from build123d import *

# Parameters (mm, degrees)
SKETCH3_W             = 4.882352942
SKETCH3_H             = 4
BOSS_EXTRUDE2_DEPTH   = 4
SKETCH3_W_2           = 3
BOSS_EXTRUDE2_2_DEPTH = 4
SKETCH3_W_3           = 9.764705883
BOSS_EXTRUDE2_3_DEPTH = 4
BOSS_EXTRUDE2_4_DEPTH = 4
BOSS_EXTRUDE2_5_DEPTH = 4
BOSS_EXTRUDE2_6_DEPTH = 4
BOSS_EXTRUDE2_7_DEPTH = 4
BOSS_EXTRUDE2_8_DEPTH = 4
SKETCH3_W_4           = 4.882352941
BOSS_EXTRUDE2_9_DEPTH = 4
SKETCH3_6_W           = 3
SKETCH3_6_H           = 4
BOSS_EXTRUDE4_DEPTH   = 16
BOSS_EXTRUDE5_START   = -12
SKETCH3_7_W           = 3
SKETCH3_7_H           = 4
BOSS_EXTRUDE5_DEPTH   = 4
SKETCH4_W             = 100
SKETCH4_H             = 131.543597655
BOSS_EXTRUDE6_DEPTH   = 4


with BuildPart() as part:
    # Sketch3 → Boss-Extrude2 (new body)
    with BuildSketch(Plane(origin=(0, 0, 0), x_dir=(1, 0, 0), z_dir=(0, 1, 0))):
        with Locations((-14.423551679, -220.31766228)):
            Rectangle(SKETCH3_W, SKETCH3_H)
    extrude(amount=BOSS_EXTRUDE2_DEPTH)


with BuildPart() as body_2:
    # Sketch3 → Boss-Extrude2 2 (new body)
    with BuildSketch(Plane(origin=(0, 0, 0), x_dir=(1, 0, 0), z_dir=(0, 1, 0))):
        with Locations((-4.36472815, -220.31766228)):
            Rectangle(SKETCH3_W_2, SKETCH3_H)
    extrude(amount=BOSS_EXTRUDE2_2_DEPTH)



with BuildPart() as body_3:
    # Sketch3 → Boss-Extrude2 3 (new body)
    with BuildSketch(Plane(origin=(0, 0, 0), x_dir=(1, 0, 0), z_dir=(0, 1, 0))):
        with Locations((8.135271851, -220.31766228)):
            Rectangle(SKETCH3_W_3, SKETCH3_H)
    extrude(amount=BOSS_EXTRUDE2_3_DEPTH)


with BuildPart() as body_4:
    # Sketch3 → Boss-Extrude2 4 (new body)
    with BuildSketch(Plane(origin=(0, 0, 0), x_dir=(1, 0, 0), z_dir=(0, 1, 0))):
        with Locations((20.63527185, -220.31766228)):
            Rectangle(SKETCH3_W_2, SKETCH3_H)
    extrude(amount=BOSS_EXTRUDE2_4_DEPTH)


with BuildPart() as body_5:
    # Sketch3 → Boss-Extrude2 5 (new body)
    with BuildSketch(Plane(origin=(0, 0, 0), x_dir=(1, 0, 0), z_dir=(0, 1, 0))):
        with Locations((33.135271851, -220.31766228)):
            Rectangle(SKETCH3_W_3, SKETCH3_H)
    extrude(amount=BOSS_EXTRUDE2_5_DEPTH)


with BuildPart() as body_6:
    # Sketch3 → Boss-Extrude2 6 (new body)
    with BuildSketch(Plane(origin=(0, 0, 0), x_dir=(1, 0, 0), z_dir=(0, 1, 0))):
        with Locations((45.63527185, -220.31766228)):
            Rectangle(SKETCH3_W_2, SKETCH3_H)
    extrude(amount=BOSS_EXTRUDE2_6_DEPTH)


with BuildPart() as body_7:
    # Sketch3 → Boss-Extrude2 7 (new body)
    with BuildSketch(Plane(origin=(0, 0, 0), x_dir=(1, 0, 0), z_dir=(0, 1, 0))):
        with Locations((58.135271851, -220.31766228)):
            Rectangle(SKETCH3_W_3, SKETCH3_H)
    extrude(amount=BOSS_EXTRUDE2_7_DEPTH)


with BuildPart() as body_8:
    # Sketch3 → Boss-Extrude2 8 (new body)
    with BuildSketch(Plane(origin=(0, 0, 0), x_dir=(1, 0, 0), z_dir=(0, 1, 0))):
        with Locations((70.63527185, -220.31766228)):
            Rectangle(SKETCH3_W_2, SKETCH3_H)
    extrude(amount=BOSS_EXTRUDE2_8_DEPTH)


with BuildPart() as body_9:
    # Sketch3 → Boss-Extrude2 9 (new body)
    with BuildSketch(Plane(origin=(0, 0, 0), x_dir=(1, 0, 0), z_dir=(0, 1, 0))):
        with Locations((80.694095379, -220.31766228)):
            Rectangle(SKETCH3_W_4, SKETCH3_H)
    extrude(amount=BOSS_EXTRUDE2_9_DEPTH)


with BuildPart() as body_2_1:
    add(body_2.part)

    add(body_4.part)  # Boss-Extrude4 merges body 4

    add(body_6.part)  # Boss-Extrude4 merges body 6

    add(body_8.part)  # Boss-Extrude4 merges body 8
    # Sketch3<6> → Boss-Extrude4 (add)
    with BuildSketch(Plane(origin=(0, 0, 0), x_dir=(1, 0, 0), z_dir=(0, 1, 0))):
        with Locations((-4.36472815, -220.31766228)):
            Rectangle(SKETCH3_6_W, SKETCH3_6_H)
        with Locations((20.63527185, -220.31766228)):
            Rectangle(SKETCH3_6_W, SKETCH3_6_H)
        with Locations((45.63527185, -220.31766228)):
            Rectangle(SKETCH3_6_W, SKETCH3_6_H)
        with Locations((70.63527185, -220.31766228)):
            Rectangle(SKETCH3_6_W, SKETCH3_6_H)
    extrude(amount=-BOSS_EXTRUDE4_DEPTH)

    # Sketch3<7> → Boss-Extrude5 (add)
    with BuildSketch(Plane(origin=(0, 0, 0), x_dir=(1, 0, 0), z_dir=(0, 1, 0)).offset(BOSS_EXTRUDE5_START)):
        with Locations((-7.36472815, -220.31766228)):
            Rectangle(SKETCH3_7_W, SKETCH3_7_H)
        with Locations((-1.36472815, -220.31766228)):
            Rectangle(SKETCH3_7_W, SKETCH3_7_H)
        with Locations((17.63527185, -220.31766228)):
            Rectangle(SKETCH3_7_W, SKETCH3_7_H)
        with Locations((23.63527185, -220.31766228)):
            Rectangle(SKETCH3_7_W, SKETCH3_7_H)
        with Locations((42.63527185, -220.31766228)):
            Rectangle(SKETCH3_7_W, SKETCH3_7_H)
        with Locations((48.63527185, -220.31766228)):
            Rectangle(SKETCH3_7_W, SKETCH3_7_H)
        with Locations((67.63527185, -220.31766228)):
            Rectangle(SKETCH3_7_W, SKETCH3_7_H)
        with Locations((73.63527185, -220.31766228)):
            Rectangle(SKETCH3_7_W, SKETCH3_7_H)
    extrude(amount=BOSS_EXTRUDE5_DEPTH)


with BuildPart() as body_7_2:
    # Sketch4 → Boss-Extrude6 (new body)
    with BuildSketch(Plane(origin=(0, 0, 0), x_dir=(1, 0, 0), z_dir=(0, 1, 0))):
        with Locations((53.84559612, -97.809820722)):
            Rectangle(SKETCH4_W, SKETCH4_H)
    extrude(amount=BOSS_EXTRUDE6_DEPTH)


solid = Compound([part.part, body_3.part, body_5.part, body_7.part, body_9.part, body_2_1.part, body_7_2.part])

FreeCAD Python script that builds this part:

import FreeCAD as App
import Part
import Sketcher

doc = App.newDocument("Part")
body = doc.addObject("PartDesign::Body", "Body")

sketch1 = body.newObject("Sketcher::SketchObject", "Sketch")
sketch1.AttachmentSupport = (doc.getObject("XZ_Plane"), [""])
sketch1.MapMode = "FlatFace"
sketch1.addGeometry([
    Part.LineSegment(App.Vector(-16.864728, 218.317662, 0), App.Vector(-16.864728, 222.317662, 0)),
    Part.LineSegment(App.Vector(-16.864728, 222.317662, 0), App.Vector(-11.982375, 222.317662, 0)),
    Part.LineSegment(App.Vector(-11.982375, 222.317662, 0), App.Vector(-11.982375, 218.317662, 0)),
    Part.LineSegment(App.Vector(-11.982375, 218.317662, 0), App.Vector(-16.864728, 218.317662, 0)),
], False)
sketch1.addConstraint([
    Sketcher.Constraint("Coincident", 0, 2, 1, 1),
    Sketcher.Constraint("Coincident", 1, 2, 2, 1),
    Sketcher.Constraint("Coincident", 2, 2, 3, 1),
    Sketcher.Constraint("Coincident", 3, 2, 0, 1),
    Sketcher.Constraint("Vertical", 0),
    Sketcher.Constraint("Horizontal", 1),
    Sketcher.Constraint("Vertical", 2),
    Sketcher.Constraint("Horizontal", 3),
    Sketcher.Constraint("DistanceY", 0, 1, 0, 2, 4.0),
    Sketcher.Constraint("DistanceX", 1, 1, 1, 2, 4.882353),
    Sketcher.Constraint("DistanceX", 0, 2, -1, 1, 16.864728),
    Sketcher.Constraint("DistanceY", -1, 1, 0, 2, 222.317662),
])
pad1 = body.newObject("PartDesign::Pad", "Pad")
pad1.Profile = sketch1
pad1.Length = 4
pad1.Reversed = True
body2 = doc.addObject("PartDesign::Body", "Body001")

sketch2 = body2.newObject("Sketcher::SketchObject", "Sketch001")
sketch2.AttachmentSupport = (doc.getObject("XZ_Plane001"), [""])
sketch2.MapMode = "FlatFace"
sketch2.addGeometry([
    Part.LineSegment(App.Vector(-5.864728, 218.317662, 0), App.Vector(-5.864728, 222.317662, 0)),
    Part.LineSegment(App.Vector(-5.864728, 222.317662, 0), App.Vector(-2.864728, 222.317662, 0)),
    Part.LineSegment(App.Vector(-2.864728, 222.317662, 0), App.Vector(-2.864728, 218.317662, 0)),
    Part.LineSegment(App.Vector(-2.864728, 218.317662, 0), App.Vector(-5.864728, 218.317662, 0)),
], False)
sketch2.addConstraint([
    Sketcher.Constraint("Coincident", 0, 2, 1, 1),
    Sketcher.Constraint("Coincident", 1, 2, 2, 1),
    Sketcher.Constraint("Coincident", 2, 2, 3, 1),
    Sketcher.Constraint("Coincident", 3, 2, 0, 1),
    Sketcher.Constraint("Vertical", 0),
    Sketcher.Constraint("Horizontal", 1),
    Sketcher.Constraint("Vertical", 2),
    Sketcher.Constraint("Horizontal", 3),
    Sketcher.Constraint("DistanceX", 1, 1, 1, 2, 3.0),
    Sketcher.Constraint("DistanceY", 0, 1, 0, 2, 4.0),
    Sketcher.Constraint("DistanceX", 0, 2, -1, 1, 5.864728),
    Sketcher.Constraint("DistanceY", -1, 1, 0, 2, 222.317662),
])
pad2 = body2.newObject("PartDesign::Pad", "Pad001")
pad2.Profile = sketch2
pad2.Length = 4
pad2.Reversed = True
body3 = doc.addObject("PartDesign::Body", "Body002")

sketch3 = body3.newObject("Sketcher::SketchObject", "Sketch002")
sketch3.AttachmentSupport = (doc.getObject("XZ_Plane002"), [""])
sketch3.MapMode = "FlatFace"
sketch3.addGeometry([
    Part.LineSegment(App.Vector(3.252919, 218.317662, 0), App.Vector(3.252919, 222.317662, 0)),
    Part.LineSegment(App.Vector(3.252919, 222.317662, 0), App.Vector(13.017625, 222.317662, 0)),
    Part.LineSegment(App.Vector(13.017625, 222.317662, 0), App.Vector(13.017625, 218.317662, 0)),
    Part.LineSegment(App.Vector(13.017625, 218.317662, 0), App.Vector(3.252919, 218.317662, 0)),
], False)
sketch3.addConstraint([
    Sketcher.Constraint("Coincident", 0, 2, 1, 1),
    Sketcher.Constraint("Coincident", 1, 2, 2, 1),
    Sketcher.Constraint("Coincident", 2, 2, 3, 1),
    Sketcher.Constraint("Coincident", 3, 2, 0, 1),
    Sketcher.Constraint("Vertical", 0),
    Sketcher.Constraint("Horizontal", 1),
    Sketcher.Constraint("Vertical", 2),
    Sketcher.Constraint("Horizontal", 3),
    Sketcher.Constraint("DistanceY", 0, 1, 0, 2, 4.0),
    Sketcher.Constraint("DistanceX", 1, 1, 1, 2, 9.764706),
    Sketcher.Constraint("DistanceX", -1, 1, 0, 2, 3.252919),
    Sketcher.Constraint("DistanceY", -1, 1, 0, 2, 222.317662),
])
pad3 = body3.newObject("PartDesign::Pad", "Pad002")
pad3.Profile = sketch3
pad3.Length = 4
pad3.Reversed = True
body4 = doc.addObject("PartDesign::Body", "Body003")

sketch4 = body4.newObject("Sketcher::SketchObject", "Sketch003")
sketch4.AttachmentSupport = (doc.getObject("XZ_Plane003"), [""])
sketch4.MapMode = "FlatFace"
sketch4.addGeometry([
    Part.LineSegment(App.Vector(19.135272, 218.317662, 0), App.Vector(19.135272, 222.317662, 0)),
    Part.LineSegment(App.Vector(19.135272, 222.317662, 0), App.Vector(22.135272, 222.317662, 0)),
    Part.LineSegment(App.Vector(22.135272, 222.317662, 0), App.Vector(22.135272, 218.317662, 0)),
    Part.LineSegment(App.Vector(22.135272, 218.317662, 0), App.Vector(19.135272, 218.317662, 0)),
], False)
sketch4.addConstraint([
    Sketcher.Constraint("Coincident", 0, 2, 1, 1),
    Sketcher.Constraint("Coincident", 1, 2, 2, 1),
    Sketcher.Constraint("Coincident", 2, 2, 3, 1),
    Sketcher.Constraint("Coincident", 3, 2, 0, 1),
    Sketcher.Constraint("Vertical", 0),
    Sketcher.Constraint("Horizontal", 1),
    Sketcher.Constraint("Vertical", 2),
    Sketcher.Constraint("Horizontal", 3),
    Sketcher.Constraint("DistanceX", 1, 1, 1, 2, 3.0),
    Sketcher.Constraint("DistanceY", 0, 1, 0, 2, 4.0),
    Sketcher.Constraint("DistanceX", -1, 1, 0, 2, 19.135272),
    Sketcher.Constraint("DistanceY", -1, 1, 0, 2, 222.317662),
])
pad4 = body4.newObject("PartDesign::Pad", "Pad003")
pad4.Profile = sketch4
pad4.Length = 4
pad4.Reversed = True
body5 = doc.addObject("PartDesign::Body", "Body004")

sketch5 = body5.newObject("Sketcher::SketchObject", "Sketch004")
sketch5.AttachmentSupport = (doc.getObject("XZ_Plane004"), [""])
sketch5.MapMode = "FlatFace"
sketch5.addGeometry([
    Part.LineSegment(App.Vector(28.252919, 218.317662, 0), App.Vector(28.252919, 222.317662, 0)),
    Part.LineSegment(App.Vector(28.252919, 222.317662, 0), App.Vector(38.017625, 222.317662, 0)),
    Part.LineSegment(App.Vector(38.017625, 222.317662, 0), App.Vector(38.017625, 218.317662, 0)),
    Part.LineSegment(App.Vector(38.017625, 218.317662, 0), App.Vector(28.252919, 218.317662, 0)),
], False)
sketch5.addConstraint([
    Sketcher.Constraint("Coincident", 0, 2, 1, 1),
    Sketcher.Constraint("Coincident", 1, 2, 2, 1),
    Sketcher.Constraint("Coincident", 2, 2, 3, 1),
    Sketcher.Constraint("Coincident", 3, 2, 0, 1),
    Sketcher.Constraint("Vertical", 0),
    Sketcher.Constraint("Horizontal", 1),
    Sketcher.Constraint("Vertical", 2),
    Sketcher.Constraint("Horizontal", 3),
    Sketcher.Constraint("DistanceY", 0, 1, 0, 2, 4.0),
    Sketcher.Constraint("DistanceX", 1, 1, 1, 2, 9.764706),
    Sketcher.Constraint("DistanceX", -1, 1, 0, 2, 28.252919),
    Sketcher.Constraint("DistanceY", -1, 1, 0, 2, 222.317662),
])
pad5 = body5.newObject("PartDesign::Pad", "Pad004")
pad5.Profile = sketch5
pad5.Length = 4
pad5.Reversed = True
body6 = doc.addObject("PartDesign::Body", "Body005")

sketch6 = body6.newObject("Sketcher::SketchObject", "Sketch005")
sketch6.AttachmentSupport = (doc.getObject("XZ_Plane005"), [""])
sketch6.MapMode = "FlatFace"
sketch6.addGeometry([
    Part.LineSegment(App.Vector(44.135272, 218.317662, 0), App.Vector(44.135272, 222.317662, 0)),
    Part.LineSegment(App.Vector(44.135272, 222.317662, 0), App.Vector(47.135272, 222.317662, 0)),
    Part.LineSegment(App.Vector(47.135272, 222.317662, 0), App.Vector(47.135272, 218.317662, 0)),
    Part.LineSegment(App.Vector(47.135272, 218.317662, 0), App.Vector(44.135272, 218.317662, 0)),
], False)
sketch6.addConstraint([
    Sketcher.Constraint("Coincident", 0, 2, 1, 1),
    Sketcher.Constraint("Coincident", 1, 2, 2, 1),
    Sketcher.Constraint("Coincident", 2, 2, 3, 1),
    Sketcher.Constraint("Coincident", 3, 2, 0, 1),
    Sketcher.Constraint("Vertical", 0),
    Sketcher.Constraint("Horizontal", 1),
    Sketcher.Constraint("Vertical", 2),
    Sketcher.Constraint("Horizontal", 3),
    Sketcher.Constraint("DistanceX", 1, 1, 1, 2, 3.0),
    Sketcher.Constraint("DistanceY", 0, 1, 0, 2, 4.0),
    Sketcher.Constraint("DistanceX", -1, 1, 0, 2, 44.135272),
    Sketcher.Constraint("DistanceY", -1, 1, 0, 2, 222.317662),
])
pad6 = body6.newObject("PartDesign::Pad", "Pad005")
pad6.Profile = sketch6
pad6.Length = 4
pad6.Reversed = True
body7 = doc.addObject("PartDesign::Body", "Body006")

sketch7 = body7.newObject("Sketcher::SketchObject", "Sketch006")
sketch7.AttachmentSupport = (doc.getObject("XZ_Plane006"), [""])
sketch7.MapMode = "FlatFace"
sketch7.addGeometry([
    Part.LineSegment(App.Vector(53.252919, 218.317662, 0), App.Vector(53.252919, 222.317662, 0)),
    Part.LineSegment(App.Vector(53.252919, 222.317662, 0), App.Vector(63.017625, 222.317662, 0)),
    Part.LineSegment(App.Vector(63.017625, 222.317662, 0), App.Vector(63.017625, 218.317662, 0)),
    Part.LineSegment(App.Vector(63.017625, 218.317662, 0), App.Vector(53.252919, 218.317662, 0)),
], False)
sketch7.addConstraint([
    Sketcher.Constraint("Coincident", 0, 2, 1, 1),
    Sketcher.Constraint("Coincident", 1, 2, 2, 1),
    Sketcher.Constraint("Coincident", 2, 2, 3, 1),
    Sketcher.Constraint("Coincident", 3, 2, 0, 1),
    Sketcher.Constraint("Vertical", 0),
    Sketcher.Constraint("Horizontal", 1),
    Sketcher.Constraint("Vertical", 2),
    Sketcher.Constraint("Horizontal", 3),
    Sketcher.Constraint("DistanceY", 0, 1, 0, 2, 4.0),
    Sketcher.Constraint("DistanceX", 1, 1, 1, 2, 9.764706),
    Sketcher.Constraint("DistanceX", -1, 1, 0, 2, 53.252919),
    Sketcher.Constraint("DistanceY", -1, 1, 0, 2, 222.317662),
])
pad7 = body7.newObject("PartDesign::Pad", "Pad006")
pad7.Profile = sketch7
pad7.Length = 4
pad7.Reversed = True
body8 = doc.addObject("PartDesign::Body", "Body007")

sketch8 = body8.newObject("Sketcher::SketchObject", "Sketch007")
sketch8.AttachmentSupport = (doc.getObject("XZ_Plane007"), [""])
sketch8.MapMode = "FlatFace"
sketch8.addGeometry([
    Part.LineSegment(App.Vector(69.135272, 218.317662, 0), App.Vector(69.135272, 222.317662, 0)),
    Part.LineSegment(App.Vector(69.135272, 222.317662, 0), App.Vector(72.135272, 222.317662, 0)),
    Part.LineSegment(App.Vector(72.135272, 222.317662, 0), App.Vector(72.135272, 218.317662, 0)),
    Part.LineSegment(App.Vector(72.135272, 218.317662, 0), App.Vector(69.135272, 218.317662, 0)),
], False)
sketch8.addConstraint([
    Sketcher.Constraint("Coincident", 0, 2, 1, 1),
    Sketcher.Constraint("Coincident", 1, 2, 2, 1),
    Sketcher.Constraint("Coincident", 2, 2, 3, 1),
    Sketcher.Constraint("Coincident", 3, 2, 0, 1),
    Sketcher.Constraint("Vertical", 0),
    Sketcher.Constraint("Horizontal", 1),
    Sketcher.Constraint("Vertical", 2),
    Sketcher.Constraint("Horizontal", 3),
    Sketcher.Constraint("DistanceX", 1, 1, 1, 2, 3.0),
    Sketcher.Constraint("DistanceY", 0, 1, 0, 2, 4.0),
    Sketcher.Constraint("DistanceX", -1, 1, 0, 2, 69.135272),
    Sketcher.Constraint("DistanceY", -1, 1, 0, 2, 222.317662),
])
pad8 = body8.newObject("PartDesign::Pad", "Pad007")
pad8.Profile = sketch8
pad8.Length = 4
pad8.Reversed = True
body9 = doc.addObject("PartDesign::Body", "Body008")

sketch9 = body9.newObject("Sketcher::SketchObject", "Sketch008")
sketch9.AttachmentSupport = (doc.getObject("XZ_Plane008"), [""])
sketch9.MapMode = "FlatFace"
sketch9.addGeometry([
    Part.LineSegment(App.Vector(78.252919, 218.317662, 0), App.Vector(78.252919, 222.317662, 0)),
    Part.LineSegment(App.Vector(78.252919, 222.317662, 0), App.Vector(83.135272, 222.317662, 0)),
    Part.LineSegment(App.Vector(83.135272, 222.317662, 0), App.Vector(83.135272, 218.317662, 0)),
    Part.LineSegment(App.Vector(83.135272, 218.317662, 0), App.Vector(78.252919, 218.317662, 0)),
], False)
sketch9.addConstraint([
    Sketcher.Constraint("Coincident", 0, 2, 1, 1),
    Sketcher.Constraint("Coincident", 1, 2, 2, 1),
    Sketcher.Constraint("Coincident", 2, 2, 3, 1),
    Sketcher.Constraint("Coincident", 3, 2, 0, 1),
    Sketcher.Constraint("Vertical", 0),
    Sketcher.Constraint("Horizontal", 1),
    Sketcher.Constraint("Vertical", 2),
    Sketcher.Constraint("Horizontal", 3),
    Sketcher.Constraint("DistanceY", 0, 1, 0, 2, 4.0),
    Sketcher.Constraint("DistanceX", 1, 1, 1, 2, 4.882353),
    Sketcher.Constraint("DistanceX", -1, 1, 0, 2, 78.252919),
    Sketcher.Constraint("DistanceY", -1, 1, 0, 2, 222.317662),
])
pad9 = body9.newObject("PartDesign::Pad", "Pad008")
pad9.Profile = sketch9
pad9.Length = 4
pad9.Reversed = True
body2.AllowCompound = True
doc.recompute()

boolean = body2.newObject("PartDesign::Boolean", "Boolean")
boolean.Type = "Fuse"
boolean.addObjects([body4])
doc.recompute()

boolean2 = body2.newObject("PartDesign::Boolean", "Boolean001")
boolean2.Type = "Fuse"
boolean2.addObjects([body6])
doc.recompute()

boolean3 = body2.newObject("PartDesign::Boolean", "Boolean002")
boolean3.Type = "Fuse"
boolean3.addObjects([body8])

sketch10 = body2.newObject("Sketcher::SketchObject", "Sketch009")
sketch10.AttachmentSupport = (doc.getObject("XZ_Plane001"), [""])
sketch10.MapMode = "FlatFace"
sketch10.addGeometry([
    Part.LineSegment(App.Vector(-5.864728, 218.317662, 0), App.Vector(-5.864728, 222.317662, 0)),
    Part.LineSegment(App.Vector(-5.864728, 222.317662, 0), App.Vector(-2.864728, 222.317662, 0)),
    Part.LineSegment(App.Vector(-2.864728, 222.317662, 0), App.Vector(-2.864728, 218.317662, 0)),
    Part.LineSegment(App.Vector(-2.864728, 218.317662, 0), App.Vector(-5.864728, 218.317662, 0)),
    Part.LineSegment(App.Vector(19.135272, 218.317662, 0), App.Vector(19.135272, 222.317662, 0)),
    Part.LineSegment(App.Vector(19.135272, 222.317662, 0), App.Vector(22.135272, 222.317662, 0)),
    Part.LineSegment(App.Vector(22.135272, 222.317662, 0), App.Vector(22.135272, 218.317662, 0)),
    Part.LineSegment(App.Vector(22.135272, 218.317662, 0), App.Vector(19.135272, 218.317662, 0)),
    Part.LineSegment(App.Vector(44.135272, 218.317662, 0), App.Vector(44.135272, 222.317662, 0)),
    Part.LineSegment(App.Vector(44.135272, 222.317662, 0), App.Vector(47.135272, 222.317662, 0)),
    Part.LineSegment(App.Vector(47.135272, 222.317662, 0), App.Vector(47.135272, 218.317662, 0)),
    Part.LineSegment(App.Vector(47.135272, 218.317662, 0), App.Vector(44.135272, 218.317662, 0)),
    Part.LineSegment(App.Vector(69.135272, 218.317662, 0), App.Vector(69.135272, 222.317662, 0)),
    Part.LineSegment(App.Vector(69.135272, 222.317662, 0), App.Vector(72.135272, 222.317662, 0)),
    Part.LineSegment(App.Vector(72.135272, 222.317662, 0), App.Vector(72.135272, 218.317662, 0)),
    Part.LineSegment(App.Vector(72.135272, 218.317662, 0), App.Vector(69.135272, 218.317662, 0)),
], False)
sketch10.addConstraint([
    Sketcher.Constraint("Coincident", 0, 2, 1, 1),
    Sketcher.Constraint("Coincident", 1, 2, 2, 1),
    Sketcher.Constraint("Coincident", 2, 2, 3, 1),
    Sketcher.Constraint("Coincident", 3, 2, 0, 1),
    Sketcher.Constraint("Coincident", 4, 2, 5, 1),
    Sketcher.Constraint("Coincident", 5, 2, 6, 1),
    Sketcher.Constraint("Coincident", 6, 2, 7, 1),
    Sketcher.Constraint("Coincident", 7, 2, 4, 1),
    Sketcher.Constraint("Coincident", 8, 2, 9, 1),
    Sketcher.Constraint("Coincident", 9, 2, 10, 1),
    Sketcher.Constraint("Coincident", 10, 2, 11, 1),
    Sketcher.Constraint("Coincident", 11, 2, 8, 1),
    Sketcher.Constraint("Coincident", 12, 2, 13, 1),
    Sketcher.Constraint("Coincident", 13, 2, 14, 1),
    Sketcher.Constraint("Coincident", 14, 2, 15, 1),
    Sketcher.Constraint("Coincident", 15, 2, 12, 1),
    Sketcher.Constraint("Vertical", 0),
    Sketcher.Constraint("Horizontal", 1),
    Sketcher.Constraint("Vertical", 2),
    Sketcher.Constraint("Horizontal", 3),
    Sketcher.Constraint("Vertical", 4),
    Sketcher.Constraint("Horizontal", 5),
    Sketcher.Constraint("Vertical", 6),
    Sketcher.Constraint("Horizontal", 7),
    Sketcher.Constraint("Vertical", 8),
    Sketcher.Constraint("Horizontal", 9),
    Sketcher.Constraint("Vertical", 10),
    Sketcher.Constraint("Horizontal", 11),
    Sketcher.Constraint("Vertical", 12),
    Sketcher.Constraint("Horizontal", 13),
    Sketcher.Constraint("Vertical", 14),
    Sketcher.Constraint("Horizontal", 15),
    Sketcher.Constraint("Horizontal", 1, 2, 4, 2),
    Sketcher.Constraint("Horizontal", 3, 2, 6, 2),
    Sketcher.Constraint("Horizontal", 5, 2, 8, 2),
    Sketcher.Constraint("Horizontal", 7, 2, 10, 2),
    Sketcher.Constraint("Horizontal", 9, 2, 12, 2),
    Sketcher.Constraint("Horizontal", 11, 2, 14, 2),
    Sketcher.Constraint("Equal", 3, 5),
    Sketcher.Constraint("Equal", 7, 9),
    Sketcher.Constraint("Equal", 11, 13),
    Sketcher.Constraint("DistanceX", 1, 1, 1, 2, 3.0),
    Sketcher.Constraint("DistanceY", 0, 1, 0, 2, 4.0),
    Sketcher.Constraint("DistanceX", 1, 2, 4, 2, 22.0),
    Sketcher.Constraint("DistanceX", 5, 2, 8, 2, 22.0),
    Sketcher.Constraint("DistanceX", 9, 2, 12, 2, 22.0),
    Sketcher.Constraint("DistanceX", 0, 2, -1, 1, 5.864728),
    Sketcher.Constraint("DistanceY", -1, 1, 0, 2, 222.317662),
])
pad10 = body2.newObject("PartDesign::Pad", "Pad009")
pad10.Profile = sketch10
pad10.Length = 16

sketch11 = body2.newObject("Sketcher::SketchObject", "Sketch010")
sketch11.AttachmentSupport = (doc.getObject("XZ_Plane001"), [""])
sketch11.MapMode = "FlatFace"
sketch11.AttachmentOffset = App.Placement(App.Vector(0, 0, 12), App.Rotation())
sketch11.addGeometry([
    Part.LineSegment(App.Vector(-8.864728, 218.317662, 0), App.Vector(-8.864728, 222.317662, 0)),
    Part.LineSegment(App.Vector(-8.864728, 222.317662, 0), App.Vector(-5.864728, 222.317662, 0)),
    Part.LineSegment(App.Vector(-5.864728, 222.317662, 0), App.Vector(-5.864728, 218.317662, 0)),
    Part.LineSegment(App.Vector(-5.864728, 218.317662, 0), App.Vector(-8.864728, 218.317662, 0)),
    Part.LineSegment(App.Vector(-2.864728, 218.317662, 0), App.Vector(-2.864728, 222.317662, 0)),
    Part.LineSegment(App.Vector(-2.864728, 222.317662, 0), App.Vector(0.135272, 222.317662, 0)),
    Part.LineSegment(App.Vector(0.135272, 222.317662, 0), App.Vector(0.135272, 218.317662, 0)),
    Part.LineSegment(App.Vector(0.135272, 218.317662, 0), App.Vector(-2.864728, 218.317662, 0)),
    Part.LineSegment(App.Vector(16.135272, 218.317662, 0), App.Vector(16.135272, 222.317662, 0)),
    Part.LineSegment(App.Vector(16.135272, 222.317662, 0), App.Vector(19.135272, 222.317662, 0)),
    Part.LineSegment(App.Vector(19.135272, 222.317662, 0), App.Vector(19.135272, 218.317662, 0)),
    Part.LineSegment(App.Vector(19.135272, 218.317662, 0), App.Vector(16.135272, 218.317662, 0)),
    Part.LineSegment(App.Vector(22.135272, 218.317662, 0), App.Vector(22.135272, 222.317662, 0)),
    Part.LineSegment(App.Vector(22.135272, 222.317662, 0), App.Vector(25.135272, 222.317662, 0)),
    Part.LineSegment(App.Vector(25.135272, 222.317662, 0), App.Vector(25.135272, 218.317662, 0)),
    Part.LineSegment(App.Vector(25.135272, 218.317662, 0), App.Vector(22.135272, 218.317662, 0)),
    Part.LineSegment(App.Vector(41.135272, 218.317662, 0), App.Vector(41.135272, 222.317662, 0)),
    Part.LineSegment(App.Vector(41.135272, 222.317662, 0), App.Vector(44.135272, 222.317662, 0)),
    Part.LineSegment(App.Vector(44.135272, 222.317662, 0), App.Vector(44.135272, 218.317662, 0)),
    Part.LineSegment(App.Vector(44.135272, 218.317662, 0), App.Vector(41.135272, 218.317662, 0)),
    Part.LineSegment(App.Vector(47.135272, 218.317662, 0), App.Vector(47.135272, 222.317662, 0)),
    Part.LineSegment(App.Vector(47.135272, 222.317662, 0), App.Vector(50.135272, 222.317662, 0)),
    Part.LineSegment(App.Vector(50.135272, 222.317662, 0), App.Vector(50.135272, 218.317662, 0)),
    Part.LineSegment(App.Vector(50.135272, 218.317662, 0), App.Vector(47.135272, 218.317662, 0)),
    Part.LineSegment(App.Vector(66.135272, 218.317662, 0), App.Vector(66.135272, 222.317662, 0)),
    Part.LineSegment(App.Vector(66.135272, 222.317662, 0), App.Vector(69.135272, 222.317662, 0)),
    Part.LineSegment(App.Vector(69.135272, 222.317662, 0), App.Vector(69.135272, 218.317662, 0)),
    Part.LineSegment(App.Vector(69.135272, 218.317662, 0), App.Vector(66.135272, 218.317662, 0)),
    Part.LineSegment(App.Vector(72.135272, 218.317662, 0), App.Vector(72.135272, 222.317662, 0)),
    Part.LineSegment(App.Vector(72.135272, 222.317662, 0), App.Vector(75.135272, 222.317662, 0)),
    Part.LineSegment(App.Vector(75.135272, 222.317662, 0), App.Vector(75.135272, 218.317662, 0)),
    Part.LineSegment(App.Vector(75.135272, 218.317662, 0), App.Vector(72.135272, 218.317662, 0)),
], False)
sketch11.addConstraint([
    Sketcher.Constraint("Coincident", 0, 2, 1, 1),
    Sketcher.Constraint("Coincident", 1, 2, 2, 1),
    Sketcher.Constraint("Coincident", 2, 2, 3, 1),
    Sketcher.Constraint("Coincident", 3, 2, 0, 1),
    Sketcher.Constraint("Coincident", 4, 2, 5, 1),
    Sketcher.Constraint("Coincident", 5, 2, 6, 1),
    Sketcher.Constraint("Coincident", 6, 2, 7, 1),
    Sketcher.Constraint("Coincident", 7, 2, 4, 1),
    Sketcher.Constraint("Coincident", 8, 2, 9, 1),
    Sketcher.Constraint("Coincident", 9, 2, 10, 1),
    Sketcher.Constraint("Coincident", 10, 2, 11, 1),
    Sketcher.Constraint("Coincident", 11, 2, 8, 1),
    Sketcher.Constraint("Coincident", 12, 2, 13, 1),
    Sketcher.Constraint("Coincident", 13, 2, 14, 1),
    Sketcher.Constraint("Coincident", 14, 2, 15, 1),
    Sketcher.Constraint("Coincident", 15, 2, 12, 1),
    Sketcher.Constraint("Coincident", 16, 2, 17, 1),
    Sketcher.Constraint("Coincident", 17, 2, 18, 1),
    Sketcher.Constraint("Coincident", 18, 2, 19, 1),
    Sketcher.Constraint("Coincident", 19, 2, 16, 1),
    Sketcher.Constraint("Coincident", 20, 2, 21, 1),
    Sketcher.Constraint("Coincident", 21, 2, 22, 1),
    Sketcher.Constraint("Coincident", 22, 2, 23, 1),
    Sketcher.Constraint("Coincident", 23, 2, 20, 1),
    Sketcher.Constraint("Coincident", 24, 2, 25, 1),
    Sketcher.Constraint("Coincident", 25, 2, 26, 1),
    Sketcher.Constraint("Coincident", 26, 2, 27, 1),
    Sketcher.Constraint("Coincident", 27, 2, 24, 1),
    Sketcher.Constraint("Coincident", 28, 2, 29, 1),
    Sketcher.Constraint("Coincident", 29, 2, 30, 1),
    Sketcher.Constraint("Coincident", 30, 2, 31, 1),
    Sketcher.Constraint("Coincident", 31, 2, 28, 1),
    Sketcher.Constraint("Vertical", 0),
    Sketcher.Constraint("Horizontal", 1),
    Sketcher.Constraint("Vertical", 2),
    Sketcher.Constraint("Horizontal", 3),
    Sketcher.Constraint("Vertical", 4),
    Sketcher.Constraint("Horizontal", 5),
    Sketcher.Constraint("Vertical", 6),
    Sketcher.Constraint("Horizontal", 7),
    Sketcher.Constraint("Vertical", 8),
    Sketcher.Constraint("Horizontal", 9),
    Sketcher.Constraint("Vertical", 10),
    Sketcher.Constraint("Horizontal", 11),
    Sketcher.Constraint("Vertical", 12),
    Sketcher.Constraint("Horizontal", 13),
    Sketcher.Constraint("Vertical", 14),
    Sketcher.Constraint("Horizontal", 15),
    Sketcher.Constraint("Vertical", 16),
    Sketcher.Constraint("Horizontal", 17),
    Sketcher.Constraint("Vertical", 18),
    Sketcher.Constraint("Horizontal", 19),
    Sketcher.Constraint("Vertical", 20),
    Sketcher.Constraint("Horizontal", 21),
    Sketcher.Constraint("Vertical", 22),
    Sketcher.Constraint("Horizontal", 23),
    Sketcher.Constraint("Vertical", 24),
    Sketcher.Constraint("Horizontal", 25),
    Sketcher.Constraint("Vertical", 26),
    Sketcher.Constraint("Horizontal", 27),
    Sketcher.Constraint("Vertical", 28),
    Sketcher.Constraint("Horizontal", 29),
    Sketcher.Constraint("Vertical", 30),
    Sketcher.Constraint("Horizontal", 31),
    Sketcher.Constraint("Horizontal", 1, 2, 4, 2),
    Sketcher.Constraint("Horizontal", 3, 2, 6, 2),
    Sketcher.Constraint("Horizontal", 5, 2, 8, 2),
    Sketcher.Constraint("Horizontal", 7, 2, 10, 2),
    Sketcher.Constraint("Horizontal", 9, 2, 12, 2),
    Sketcher.Constraint("Horizontal", 11, 2, 14, 2),
    Sketcher.Constraint("Horizontal", 13, 2, 16, 2),
    Sketcher.Constraint("Horizontal", 15, 2, 18, 2),
    Sketcher.Constraint("Horizontal", 17, 2, 20, 2),
    Sketcher.Constraint("Horizontal", 19, 2, 22, 2),
    Sketcher.Constraint("Horizontal", 21, 2, 24, 2),
    Sketcher.Constraint("Horizontal", 23, 2, 26, 2),
    Sketcher.Constraint("Horizontal", 25, 2, 28, 2),
    Sketcher.Constraint("Horizontal", 27, 2, 30, 2),
    Sketcher.Constraint("Equal", 3, 5),
    Sketcher.Constraint("Equal", 7, 9),
    Sketcher.Constraint("Equal", 11, 13),
    Sketcher.Constraint("Equal", 15, 17),
    Sketcher.Constraint("Equal", 19, 21),
    Sketcher.Constraint("Equal", 23, 25),
    Sketcher.Constraint("Equal", 27, 29),
    Sketcher.Constraint("DistanceX", 1, 1, 1, 2, 3.0),
    Sketcher.Constraint("DistanceY", 0, 1, 0, 2, 4.0),
    Sketcher.Constraint("DistanceX", 1, 2, 4, 2, 3.0),
    Sketcher.Constraint("DistanceX", 5, 2, 8, 2, 16.0),
    Sketcher.Constraint("DistanceX", 9, 2, 12, 2, 3.0),
    Sketcher.Constraint("DistanceX", 13, 2, 16, 2, 16.0),
    Sketcher.Constraint("DistanceX", 17, 2, 20, 2, 3.0),
    Sketcher.Constraint("DistanceX", 21, 2, 24, 2, 16.0),
    Sketcher.Constraint("DistanceX", 25, 2, 28, 2, 3.0),
    Sketcher.Constraint("DistanceX", 0, 2, -1, 1, 8.864728),
    Sketcher.Constraint("DistanceY", -1, 1, 0, 2, 222.317662),
])
pad11 = body2.newObject("PartDesign::Pad", "Pad010")
pad11.Profile = sketch11
pad11.Length = 4
pad11.Reversed = True
body10 = doc.addObject("PartDesign::Body", "Body009")

sketch12 = body10.newObject("Sketcher::SketchObject", "Sketch011")
sketch12.AttachmentSupport = (doc.getObject("XZ_Plane009"), [""])
sketch12.MapMode = "FlatFace"
sketch12.addGeometry([
    Part.LineSegment(App.Vector(3.845596, 32.038022, 0), App.Vector(3.845596, 163.58162, 0)),
    Part.LineSegment(App.Vector(3.845596, 163.58162, 0), App.Vector(103.845596, 163.58162, 0)),
    Part.LineSegment(App.Vector(103.845596, 163.58162, 0), App.Vector(103.845596, 32.038022, 0)),
    Part.LineSegment(App.Vector(103.845596, 32.038022, 0), App.Vector(3.845596, 32.038022, 0)),
], False)
sketch12.addConstraint([
    Sketcher.Constraint("Coincident", 0, 2, 1, 1),
    Sketcher.Constraint("Coincident", 1, 2, 2, 1),
    Sketcher.Constraint("Coincident", 2, 2, 3, 1),
    Sketcher.Constraint("Coincident", 3, 2, 0, 1),
    Sketcher.Constraint("Vertical", 0),
    Sketcher.Constraint("Horizontal", 1),
    Sketcher.Constraint("Vertical", 2),
    Sketcher.Constraint("Horizontal", 3),
    Sketcher.Constraint("DistanceX", 1, 1, 1, 2, 100.0),
    Sketcher.Constraint("DistanceY", 0, 1, 0, 2, 131.543598),
    Sketcher.Constraint("DistanceY", -1, 1, 0, 2, 163.58162),
    Sketcher.Constraint("DistanceX", -1, 1, 0, 2, 3.845596),
])
pad12 = body10.newObject("PartDesign::Pad", "Pad011")
pad12.Profile = sketch12
pad12.Length = 4
pad12.Reversed = True

doc.recompute()
